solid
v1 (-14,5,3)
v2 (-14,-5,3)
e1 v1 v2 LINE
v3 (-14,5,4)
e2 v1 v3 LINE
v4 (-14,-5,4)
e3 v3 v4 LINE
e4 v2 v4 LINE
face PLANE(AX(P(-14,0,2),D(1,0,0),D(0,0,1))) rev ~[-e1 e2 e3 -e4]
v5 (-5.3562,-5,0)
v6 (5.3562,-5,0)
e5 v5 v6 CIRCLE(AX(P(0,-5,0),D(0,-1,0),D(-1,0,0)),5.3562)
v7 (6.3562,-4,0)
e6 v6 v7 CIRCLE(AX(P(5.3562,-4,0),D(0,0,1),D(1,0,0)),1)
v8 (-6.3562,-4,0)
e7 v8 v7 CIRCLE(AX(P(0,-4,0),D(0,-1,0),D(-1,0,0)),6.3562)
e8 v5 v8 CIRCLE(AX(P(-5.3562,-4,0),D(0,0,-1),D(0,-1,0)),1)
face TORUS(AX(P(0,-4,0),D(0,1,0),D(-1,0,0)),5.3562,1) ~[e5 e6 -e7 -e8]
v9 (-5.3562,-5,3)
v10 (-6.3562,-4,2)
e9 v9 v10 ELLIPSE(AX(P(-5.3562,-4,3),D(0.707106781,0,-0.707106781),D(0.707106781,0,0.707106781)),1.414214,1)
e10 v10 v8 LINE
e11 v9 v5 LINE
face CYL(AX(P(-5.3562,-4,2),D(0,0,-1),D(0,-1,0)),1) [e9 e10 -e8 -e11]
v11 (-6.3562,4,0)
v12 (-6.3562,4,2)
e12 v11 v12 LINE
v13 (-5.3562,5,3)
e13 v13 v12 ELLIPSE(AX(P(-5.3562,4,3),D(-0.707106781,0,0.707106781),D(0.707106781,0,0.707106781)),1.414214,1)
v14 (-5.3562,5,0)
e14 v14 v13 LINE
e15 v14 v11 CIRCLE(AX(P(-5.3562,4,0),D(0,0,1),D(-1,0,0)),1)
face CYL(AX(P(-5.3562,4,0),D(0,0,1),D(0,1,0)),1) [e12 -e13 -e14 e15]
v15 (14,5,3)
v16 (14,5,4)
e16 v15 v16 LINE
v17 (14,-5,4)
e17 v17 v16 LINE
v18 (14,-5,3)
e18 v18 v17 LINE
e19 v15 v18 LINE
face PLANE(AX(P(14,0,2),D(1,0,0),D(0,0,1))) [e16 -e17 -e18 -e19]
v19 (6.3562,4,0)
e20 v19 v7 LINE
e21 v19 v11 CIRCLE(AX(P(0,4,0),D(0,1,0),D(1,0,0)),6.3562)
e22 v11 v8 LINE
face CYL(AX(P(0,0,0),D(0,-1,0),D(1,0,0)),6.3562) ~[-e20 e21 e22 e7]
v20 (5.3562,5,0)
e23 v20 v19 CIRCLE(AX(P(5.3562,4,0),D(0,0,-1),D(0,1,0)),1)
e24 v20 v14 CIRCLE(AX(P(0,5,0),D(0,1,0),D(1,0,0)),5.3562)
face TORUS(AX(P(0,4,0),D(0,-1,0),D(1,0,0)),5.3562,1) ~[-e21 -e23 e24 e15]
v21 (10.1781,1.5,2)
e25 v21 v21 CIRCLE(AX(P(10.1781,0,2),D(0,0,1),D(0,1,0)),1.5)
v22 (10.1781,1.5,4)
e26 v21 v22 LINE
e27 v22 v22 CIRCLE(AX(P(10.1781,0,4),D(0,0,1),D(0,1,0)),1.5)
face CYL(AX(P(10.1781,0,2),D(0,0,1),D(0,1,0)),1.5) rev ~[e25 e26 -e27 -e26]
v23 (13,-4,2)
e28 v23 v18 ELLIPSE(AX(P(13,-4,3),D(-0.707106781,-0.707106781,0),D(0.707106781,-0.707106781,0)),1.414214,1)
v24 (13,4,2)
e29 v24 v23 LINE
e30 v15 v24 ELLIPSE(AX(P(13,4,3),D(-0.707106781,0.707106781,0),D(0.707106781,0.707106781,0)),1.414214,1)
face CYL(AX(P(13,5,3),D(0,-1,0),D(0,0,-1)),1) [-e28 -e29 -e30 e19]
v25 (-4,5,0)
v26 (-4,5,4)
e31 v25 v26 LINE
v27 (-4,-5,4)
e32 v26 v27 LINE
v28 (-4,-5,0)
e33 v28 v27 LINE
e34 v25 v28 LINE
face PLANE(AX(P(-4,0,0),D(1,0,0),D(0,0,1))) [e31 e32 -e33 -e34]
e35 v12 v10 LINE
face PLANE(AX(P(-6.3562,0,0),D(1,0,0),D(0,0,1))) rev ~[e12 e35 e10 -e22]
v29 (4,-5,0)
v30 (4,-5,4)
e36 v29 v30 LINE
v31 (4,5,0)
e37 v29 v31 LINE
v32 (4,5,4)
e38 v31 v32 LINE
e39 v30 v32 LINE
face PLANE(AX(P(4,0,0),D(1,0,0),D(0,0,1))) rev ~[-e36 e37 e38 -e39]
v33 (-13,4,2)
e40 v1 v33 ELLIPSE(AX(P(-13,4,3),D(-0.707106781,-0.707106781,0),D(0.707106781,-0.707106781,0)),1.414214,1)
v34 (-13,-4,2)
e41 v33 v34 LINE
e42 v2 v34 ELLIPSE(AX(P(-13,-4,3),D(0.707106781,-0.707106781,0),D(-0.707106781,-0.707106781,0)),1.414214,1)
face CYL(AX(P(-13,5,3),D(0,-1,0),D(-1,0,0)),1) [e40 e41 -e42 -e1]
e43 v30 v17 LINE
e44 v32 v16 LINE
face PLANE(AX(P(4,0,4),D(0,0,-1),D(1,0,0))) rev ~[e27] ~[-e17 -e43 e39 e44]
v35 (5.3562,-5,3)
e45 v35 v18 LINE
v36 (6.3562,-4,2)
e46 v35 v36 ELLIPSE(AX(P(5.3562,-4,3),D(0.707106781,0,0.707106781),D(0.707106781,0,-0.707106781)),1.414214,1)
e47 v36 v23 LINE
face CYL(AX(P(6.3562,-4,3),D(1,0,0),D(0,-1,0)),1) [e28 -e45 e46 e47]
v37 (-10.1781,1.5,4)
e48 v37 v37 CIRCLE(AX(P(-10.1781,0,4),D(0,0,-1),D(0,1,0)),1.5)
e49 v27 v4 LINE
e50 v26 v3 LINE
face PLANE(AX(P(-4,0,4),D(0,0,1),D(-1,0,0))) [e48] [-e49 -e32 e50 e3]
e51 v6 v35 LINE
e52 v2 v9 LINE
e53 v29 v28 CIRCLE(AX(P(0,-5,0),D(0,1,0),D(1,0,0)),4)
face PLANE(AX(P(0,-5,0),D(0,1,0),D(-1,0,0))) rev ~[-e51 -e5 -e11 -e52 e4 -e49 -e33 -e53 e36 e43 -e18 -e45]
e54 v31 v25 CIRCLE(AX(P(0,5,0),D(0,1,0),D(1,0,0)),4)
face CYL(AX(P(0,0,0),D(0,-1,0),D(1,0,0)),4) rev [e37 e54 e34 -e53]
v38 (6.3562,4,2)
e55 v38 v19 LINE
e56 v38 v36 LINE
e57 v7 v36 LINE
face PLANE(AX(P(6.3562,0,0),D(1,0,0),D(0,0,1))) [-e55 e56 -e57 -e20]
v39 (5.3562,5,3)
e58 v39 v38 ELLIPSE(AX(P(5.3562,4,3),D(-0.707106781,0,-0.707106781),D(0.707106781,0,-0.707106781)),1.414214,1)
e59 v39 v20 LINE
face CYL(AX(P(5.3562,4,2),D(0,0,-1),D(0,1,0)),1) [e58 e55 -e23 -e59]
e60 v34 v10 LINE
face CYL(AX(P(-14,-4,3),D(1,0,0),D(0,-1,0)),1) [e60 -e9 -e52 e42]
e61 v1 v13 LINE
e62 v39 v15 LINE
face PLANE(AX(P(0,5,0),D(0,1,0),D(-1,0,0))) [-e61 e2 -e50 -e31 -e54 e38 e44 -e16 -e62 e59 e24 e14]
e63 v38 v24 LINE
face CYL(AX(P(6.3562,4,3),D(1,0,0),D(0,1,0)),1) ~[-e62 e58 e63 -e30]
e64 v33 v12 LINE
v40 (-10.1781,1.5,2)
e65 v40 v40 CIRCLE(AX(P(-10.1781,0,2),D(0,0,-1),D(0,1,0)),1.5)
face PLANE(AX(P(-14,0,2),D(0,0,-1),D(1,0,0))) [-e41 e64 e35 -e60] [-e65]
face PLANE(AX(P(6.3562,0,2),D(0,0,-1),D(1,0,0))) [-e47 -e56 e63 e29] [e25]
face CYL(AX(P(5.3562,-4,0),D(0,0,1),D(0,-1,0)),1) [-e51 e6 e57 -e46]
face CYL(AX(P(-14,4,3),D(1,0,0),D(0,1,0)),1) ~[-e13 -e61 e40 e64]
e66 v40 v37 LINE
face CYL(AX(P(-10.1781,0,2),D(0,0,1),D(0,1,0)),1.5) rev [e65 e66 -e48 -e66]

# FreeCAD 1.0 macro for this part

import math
import FreeCAD as App
import Part
import Sketcher

V = App.Vector
Q = App.Units.Quantity


def edges_at(feature, points):
    """Names of the edges that pass closest to the given points."""
    edges = feature.Shape.Edges
    near = lambda p: min(range(len(edges)), key=lambda i: edges[i].distToShape(Part.Vertex(*p))[0])
    return sorted({f"Edge{near(p) + 1}" for p in points})

doc = App.newDocument("Part")
params = doc.addObject("Spreadsheet::Sheet", "Params")
for row, (alias, value) in enumerate([
    ("sketch1_radius", "4 mm"),
    ("sketch1_width", "10 mm"),
    ("sketch1_height", "2 mm"),
    ("pad1_length", "10 mm"),
    ("sketch2_diameter", "3 mm"),
    ("hole_diameter", "3 mm"),
    ("hole_depth", "2 mm"),
    ("fillet_radius", "1 mm"),
], start=1):
    params.set(f"A{row}", alias)
    params.set(f"B{row}", "=" + value)
    params.setAlias(f"B{row}", alias)

body = doc.addObject("PartDesign::Body", "Body")

# Sketch on XZ plane
sketch1 = body.newObject("Sketcher::SketchObject", "Sketch")
sketch1.AttachmentSupport = (doc.getObject("XZ_Plane"), [""])
sketch1.MapMode = "FlatFace"
sketch1.addGeometry([
    Part.ArcOfCircle(Part.Circle(V(0, 0, 0), V(0, 0, 1), 4), math.radians(180), math.radians(360)),  # 0
    Part.LineSegment(V(4, 0, 0), V(4, 4, 0)),  # 1
    Part.LineSegment(V(4, 4, 0), V(14, 4, 0)),  # 2
    Part.LineSegment(V(14, 4, 0), V(14, 2, 0)),  # 3
    Part.LineSegment(V(14, 2, 0), V(6.3562, 2, 0)),  # 4
    Part.LineSegment(V(6.3562, 2, 0), V(6.3562, 0, 0)),  # 5
    Part.ArcOfCircle(Part.Circle(V(0, 0, 0), V(0, 0, 1), 6.3562), math.radians(180), math.radians(360)),  # 6
    Part.LineSegment(V(-6.3562, 0, 0), V(-6.3562, 2, 0)),  # 7
    Part.LineSegment(V(-6.3562, 2, 0), V(-14, 2, 0)),  # 8
    Part.LineSegment(V(-14, 2, 0), V(-14, 4, 0)),  # 9
    Part.LineSegment(V(-14, 4, 0), V(-4, 4, 0)),  # 10
    Part.LineSegment(V(-4, 4, 0), V(-4, 0, 0)),  # 11
], False)
sketch1.addConstraint([
    Sketcher.Constraint("Tangent", 0, 2, 1, 1),
    Sketcher.Constraint("Coincident", 1, 2, 2, 1),
    Sketcher.Constraint("Coincident", 2, 2, 3, 1),
    Sketcher.Constraint("Coincident", 3, 2, 4, 1),
    Sketcher.Constraint("Coincident", 4, 2, 5, 1),
    Sketcher.Constraint("Tangent", 5, 2, 6, 2),
    Sketcher.Constraint("Tangent", 6, 1, 7, 1),
    Sketcher.Constraint("Coincident", 7, 2, 8, 1),
    Sketcher.Constraint("Coincident", 8, 2, 9, 1),
    Sketcher.Constraint("Coincident", 9, 2, 10, 1),
    Sketcher.Constraint("Coincident", 10, 2, 11, 1),
    Sketcher.Constraint("Tangent", 11, 2, 0, 1),
    Sketcher.Constraint("Vertical", 1),
    Sketcher.Constraint("Horizontal", 2),
    Sketcher.Constraint("Vertical", 3),
    Sketcher.Constraint("Horizontal", 4),
    Sketcher.Constraint("Vertical", 5),
    Sketcher.Constraint("Vertical", 7),
    Sketcher.Constraint("Horizontal", 8),
    Sketcher.Constraint("Vertical", 9),
    Sketcher.Constraint("Horizontal", 10),
    Sketcher.Constraint("Vertical", 11),
    Sketcher.Constraint("Coincident", 0, 3, -1, 1),
    Sketcher.Constraint("Coincident", 6, 3, -1, 1),
    Sketcher.Constraint("Symmetric", 3, 2, 8, 2, -2),
    Sketcher.Constraint("Horizontal", 2, 2, 9, 2),
    Sketcher.Constraint("Equal", 3, 5),
    Sketcher.Constraint("Radius", 0, Q("4 mm")),
    Sketcher.Constraint("DistanceX", 2, 1, 2, 2, Q("10 mm")),
    Sketcher.Constraint("DistanceY", 3, 2, 3, 1, Q("2 mm")),
    Sketcher.Constraint("Radius", 6, Q("6.3562 mm")),
])
sketch1.setExpression("Constraints[27]", "Params.sketch1_radius")
sketch1.setExpression("Constraints[28]", "Params.sketch1_width")
sketch1.setExpression("Constraints[29]", "Params.sketch1_height")
pad1 = body.newObject("PartDesign::Pad", "Pad")
pad1.Profile = sketch1
pad1.setExpression("Length", "Params.pad1_length")
pad1.Midplane = True

# Sketch on XY plane
sketch2 = body.newObject("Sketcher::SketchObject", "Sketch001")
sketch2.AttachmentSupport = (doc.getObject("XY_Plane"), [""])
sketch2.MapMode = "FlatFace"
sketch2.AttachmentOffset = App.Placement(V(0, 0, 2), App.Rotation())
sketch2.addGeometry(Part.Circle(V(10.1781, 0, 0), V(0, 0, 1), 1.5), False)
sketch2.addConstraint([
    Sketcher.Constraint("PointOnObject", 0, 3, -1),
    Sketcher.Constraint("Diameter", 0, Q("3 mm")),
    Sketcher.Constraint("DistanceX", -1, 1, 0, 3, Q("10.178 mm")),
])
sketch2.setExpression("Constraints[1]", "Params.sketch2_diameter")
doc.recompute()
hole = body.newObject("PartDesign::Hole", "Hole")
hole.Profile = sketch2
hole.ThreadType = "None"
hole.setExpression("Diameter", "Params.hole_diameter")
hole.DepthType = "Dimension"
hole.setExpression("Depth", "Params.hole_depth")
hole.DrillPoint = "Flat"
hole.Reversed = True
doc.recompute()

mirrored = body.newObject("PartDesign::Mirrored", "Mirrored")
mirrored.Originals = [hole]
mirrored.MirrorPlane = (doc.getObject("YZ_Plane"), [""])
body.Tip = mirrored
doc.recompute()

fillet = body.newObject("PartDesign::Fillet", "Fillet")
fillet.Base = (mirrored, edges_at(mirrored, [
    (10.178, 5, 2),
    (14, 0, 2),
    (10.178, -5, 2),
    (-10.178, 5, 2),
    (-14, 0, 2),
    (-10.178, -5, 2),
    (-6.356, 5, 1),
    (6.356, 5, 1),
    (0, 5, -6.356),
    (6.356, -5, 1),
    (-6.356, -5, 1),
    (0, -5, -6.356),
]))
fillet.setExpression("Radius", "Params.fillet_radius")

doc.recompute()
